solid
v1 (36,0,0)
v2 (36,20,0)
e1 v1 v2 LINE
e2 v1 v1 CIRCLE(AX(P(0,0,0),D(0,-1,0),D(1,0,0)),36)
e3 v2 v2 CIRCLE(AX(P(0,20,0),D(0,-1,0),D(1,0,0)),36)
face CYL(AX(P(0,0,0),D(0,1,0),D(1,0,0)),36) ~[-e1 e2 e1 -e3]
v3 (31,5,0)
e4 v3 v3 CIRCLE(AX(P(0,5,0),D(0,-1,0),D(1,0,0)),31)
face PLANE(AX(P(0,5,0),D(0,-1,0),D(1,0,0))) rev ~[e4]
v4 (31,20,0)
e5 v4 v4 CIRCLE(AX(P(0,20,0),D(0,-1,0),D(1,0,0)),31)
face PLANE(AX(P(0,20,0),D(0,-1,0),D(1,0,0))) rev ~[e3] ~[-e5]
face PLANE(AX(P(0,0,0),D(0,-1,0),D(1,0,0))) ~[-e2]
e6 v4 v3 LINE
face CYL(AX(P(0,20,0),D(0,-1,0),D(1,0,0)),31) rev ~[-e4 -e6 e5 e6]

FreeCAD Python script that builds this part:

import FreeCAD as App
import Part
import Sketcher


def add_polygon(sketch, points):
    """Adds a closed chain of lines whose ends are joined by coincident constraints."""
    first, n = sketch.GeometryCount, len(points)
    for a, b in zip(points, points[1:] + points[:1]):
        sketch.addGeometry(Part.LineSegment(App.Vector(*a, 0), App.Vector(*b, 0)), False)
    for i in range(n):
        sketch.addConstraint(Sketcher.Constraint("Coincident", first + i, 2, first + (i + 1) % n, 1))

doc = App.newDocument("Part")
body = doc.addObject("PartDesign::Body", "Body")

# Sketch on XY plane
sketch1 = body.newObject("Sketcher::SketchObject", "Sketch")
sketch1.AttachmentSupport = (doc.getObject("XY_Plane"), [""])
sketch1.MapMode = "FlatFace"
add_polygon(sketch1, [(31, 5), (0, 5), (0, 0), (36, 0), (36, 20), (31, 20)])  # lines 0-5
sketch1.addConstraint([
    Sketcher.Constraint("Horizontal", 0),
    Sketcher.Constraint("Vertical", 1),
    Sketcher.Constraint("Horizontal", 2),
    Sketcher.Constraint("Vertical", 3),
    Sketcher.Constraint("Horizontal", 4),
    Sketcher.Constraint("Vertical", 5),
    Sketcher.Constraint("Coincident", 1, 2, -1, 1),
    Sketcher.Constraint("Equal", 4, 1),
    Sketcher.Constraint("DistanceX", 2, 1, 2, 2, 36.0),
    Sketcher.Constraint("DistanceX", 4, 2, 4, 1, 5.0),
    Sketcher.Constraint("DistanceY", 3, 1, 3, 2, 20.0),
])
revolution = body.newObject("PartDesign::Revolution", "Revolution")
revolution.Profile = sketch1
revolution.ReferenceAxis = (sketch1, ["V_Axis"])
revolution.Angle = 360

doc.recompute()
